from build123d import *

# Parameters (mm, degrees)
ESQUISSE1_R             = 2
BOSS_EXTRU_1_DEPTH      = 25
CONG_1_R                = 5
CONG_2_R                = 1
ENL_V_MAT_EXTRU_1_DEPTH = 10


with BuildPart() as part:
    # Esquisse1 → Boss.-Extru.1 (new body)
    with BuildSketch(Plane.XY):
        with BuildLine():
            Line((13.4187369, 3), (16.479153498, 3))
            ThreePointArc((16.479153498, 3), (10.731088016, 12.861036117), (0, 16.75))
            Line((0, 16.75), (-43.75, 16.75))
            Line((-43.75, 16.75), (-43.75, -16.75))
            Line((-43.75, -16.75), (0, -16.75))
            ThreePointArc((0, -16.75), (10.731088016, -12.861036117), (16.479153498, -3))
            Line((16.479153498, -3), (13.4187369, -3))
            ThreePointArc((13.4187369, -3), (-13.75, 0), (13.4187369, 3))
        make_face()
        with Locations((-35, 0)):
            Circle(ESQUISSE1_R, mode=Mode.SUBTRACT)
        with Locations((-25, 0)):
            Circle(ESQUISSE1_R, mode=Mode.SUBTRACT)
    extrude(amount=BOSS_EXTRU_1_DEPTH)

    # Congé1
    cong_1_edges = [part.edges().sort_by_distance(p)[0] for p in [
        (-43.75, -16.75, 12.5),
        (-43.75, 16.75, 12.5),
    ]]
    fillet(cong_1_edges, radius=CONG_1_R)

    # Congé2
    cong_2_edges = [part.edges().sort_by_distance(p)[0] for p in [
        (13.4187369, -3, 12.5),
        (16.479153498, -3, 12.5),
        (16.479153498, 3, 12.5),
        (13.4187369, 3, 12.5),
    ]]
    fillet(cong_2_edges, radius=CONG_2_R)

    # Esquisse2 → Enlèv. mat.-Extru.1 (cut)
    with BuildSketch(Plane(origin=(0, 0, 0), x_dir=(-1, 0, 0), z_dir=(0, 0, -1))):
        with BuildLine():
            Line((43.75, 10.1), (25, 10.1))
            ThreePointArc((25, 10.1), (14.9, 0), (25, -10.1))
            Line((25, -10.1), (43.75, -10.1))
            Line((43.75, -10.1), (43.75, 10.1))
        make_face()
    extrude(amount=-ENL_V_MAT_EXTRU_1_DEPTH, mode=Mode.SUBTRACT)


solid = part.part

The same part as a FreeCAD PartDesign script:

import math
import FreeCAD as App
import Part
import Sketcher

V = App.Vector
Q = App.Units.Quantity


def edges_at(feature, points):
    """Names of the edges that pass closest to the given points."""
    edges = feature.Shape.Edges
    near = lambda p: min(range(len(edges)), key=lambda i: edges[i].distToShape(Part.Vertex(*p))[0])
    return sorted({f"Edge{near(p) + 1}" for p in points})

doc = App.newDocument("Part")
body = doc.addObject("PartDesign::Body", "Body")

# Sketch on XY plane
sketch1 = doc.addObject("Sketcher::SketchObject", "Sketch")
body.addObject(sketch1)
sketch1.AttachmentSupport = (doc.XY_Plane, [""])
sketch1.MapMode = "FlatFace"
sketch1.addGeometry([
    Part.LineSegment(V(13.4, 3, 0), V(16.5, 3, 0)),  # 0
    Part.ArcOfCircle(Part.Circle(V(0, 0, 0), V(0, 0, 1), 16.8), math.radians(10), math.radians(90)),  # 1
    Part.LineSegment(V(0, 16.8, 0), V(-43.8, 16.8, 0)),  # 2
    Part.LineSegment(V(-43.8, 16.8, 0), V(-43.8, -16.8, 0)),  # 3
    Part.LineSegment(V(-43.8, -16.8, 0), V(0, -16.8, 0)),  # 4
    Part.ArcOfCircle(Part.Circle(V(0, 0, 0), V(0, 0, 1), 16.8), math.radians(-90), math.radians(-10)),  # 5
    Part.LineSegment(V(16.5, -3, 0), V(13.4, -3, 0)),  # 6
    Part.ArcOfCircle(Part.Circle(V(0, 0, 0), V(0, 0, 1), 13.8), math.radians(13), math.radians(347)),  # 7
    Part.Circle(V(-35, 0, 0), V(0, 0, 1), 2),  # 8
    Part.Circle(V(-25, 0, 0), V(0, 0, 1), 2),  # 9
], False)
sketch1.addConstraint([
    Sketcher.Constraint("Coincident", 0, 2, 1, 1),
    Sketcher.Constraint("Tangent", 1, 2, 2, 1),
    Sketcher.Constraint("Coincident", 2, 2, 3, 1),
    Sketcher.Constraint("Coincident", 3, 2, 4, 1),
    Sketcher.Constraint("Tangent", 4, 2, 5, 1),
    Sketcher.Constraint("Coincident", 5, 2, 6, 1),
    Sketcher.Constraint("Coincident", 6, 2, 7, 2),
    Sketcher.Constraint("Coincident", 7, 1, 0, 1),
    Sketcher.Constraint("Horizontal", 0),
    Sketcher.Constraint("Horizontal", 2),
    Sketcher.Constraint("Vertical", 3),
    Sketcher.Constraint("Horizontal", 4),
    Sketcher.Constraint("Horizontal", 6),
    Sketcher.Constraint("Coincident", 1, 3, -1, 1),
    Sketcher.Constraint("Coincident", 5, 3, -1, 1),
    Sketcher.Constraint("Coincident", 7, 3, -1, 1),
    Sketcher.Constraint("Equal", 1, 5),
    Sketcher.Constraint("Equal", 8, 9),
    Sketcher.Constraint("PointOnObject", 8, 3, -1),
    Sketcher.Constraint("PointOnObject", 9, 3, -1),
    Sketcher.Constraint("Vertical", 0, 2, 5, 2),
    Sketcher.Constraint("Diameter", 8, Q("4 mm")),
    Sketcher.Constraint("Radius", 1, Q("16.75 mm")),
    Sketcher.Constraint("Radius", 7, Q("13.75 mm")),
    Sketcher.Constraint("DistanceX", 8, 3, -1, 1, Q("35 mm")),
    Sketcher.Constraint("DistanceX", 9, 3, -1, 1, Q("25 mm")),
    Sketcher.Constraint("DistanceY", -1, 1, 0, 2, Q("3 mm")),
    Sketcher.Constraint("DistanceX", 2, 2, 2, 1, Q("43.75 mm")),
])
pad1 = doc.addObject("PartDesign::Pad", "Pad")
body.addObject(pad1)
pad1.Profile = sketch1
pad1.Length = 25
doc.recompute()

fillet = doc.addObject("PartDesign::Fillet", "Fillet")
body.addObject(fillet)
fillet.Base = (pad1, edges_at(pad1, [(-43.75, -16.75, 12.5), (-43.75, 16.75, 12.5)]))
fillet.Radius = 5
doc.recompute()

fillet2 = doc.addObject("PartDesign::Fillet", "Fillet001")
body.addObject(fillet2)
fillet2.Base = (fillet, edges_at(fillet, [
    (13.419, -3, 12.5),
    (16.479, -3, 12.5),
    (16.479, 3, 12.5),
    (13.419, 3, 12.5),
]))
fillet2.Radius = 1

# Sketch on XY plane
sketch2 = doc.addObject("Sketcher::SketchObject", "Sketch001")
body.addObject(sketch2)
sketch2.AttachmentSupport = (doc.XY_Plane, [""])
sketch2.MapMode = "FlatFace"
sketch2.addGeometry([
    Part.LineSegment(V(-44, 10, 0), V(-25, 10, 0)),
    Part.ArcOfCircle(Part.Circle(V(-25, 0, 0), V(0, 0, 1), 10), math.radians(-90), math.radians(90)),
    Part.LineSegment(V(-25, -10, 0), V(-44, -10, 0)),
    Part.LineSegment(V(-44, -10, 0), V(-44, 10, 0)),
], False)
sketch2.addConstraint([
    Sketcher.Constraint("Tangent", 0, 2, 1, 2),
    Sketcher.Constraint("Tangent", 1, 1, 2, 1),
    Sketcher.Constraint("Coincident", 2, 2, 3, 1),
    Sketcher.Constraint("Coincident", 3, 2, 0, 1),
    Sketcher.Constraint("Horizontal", 0),
    Sketcher.Constraint("Horizontal", 2),
    Sketcher.Constraint("Vertical", 3),
    Sketcher.Constraint("PointOnObject", 1, 3, -1),
    Sketcher.Constraint("Radius", 1, Q("10.1 mm")),
    Sketcher.Constraint("DistanceX", 1, 3, -1, 1, Q("25 mm")),
    Sketcher.Constraint("DistanceX", 0, 1, 0, 2, Q("18.75 mm")),
])
pocket1 = doc.addObject("PartDesign::Pocket", "Pocket")
body.addObject(pocket1)
pocket1.Profile = sketch2
pocket1.Length = 10
pocket1.Reversed = True

doc.recompute()
